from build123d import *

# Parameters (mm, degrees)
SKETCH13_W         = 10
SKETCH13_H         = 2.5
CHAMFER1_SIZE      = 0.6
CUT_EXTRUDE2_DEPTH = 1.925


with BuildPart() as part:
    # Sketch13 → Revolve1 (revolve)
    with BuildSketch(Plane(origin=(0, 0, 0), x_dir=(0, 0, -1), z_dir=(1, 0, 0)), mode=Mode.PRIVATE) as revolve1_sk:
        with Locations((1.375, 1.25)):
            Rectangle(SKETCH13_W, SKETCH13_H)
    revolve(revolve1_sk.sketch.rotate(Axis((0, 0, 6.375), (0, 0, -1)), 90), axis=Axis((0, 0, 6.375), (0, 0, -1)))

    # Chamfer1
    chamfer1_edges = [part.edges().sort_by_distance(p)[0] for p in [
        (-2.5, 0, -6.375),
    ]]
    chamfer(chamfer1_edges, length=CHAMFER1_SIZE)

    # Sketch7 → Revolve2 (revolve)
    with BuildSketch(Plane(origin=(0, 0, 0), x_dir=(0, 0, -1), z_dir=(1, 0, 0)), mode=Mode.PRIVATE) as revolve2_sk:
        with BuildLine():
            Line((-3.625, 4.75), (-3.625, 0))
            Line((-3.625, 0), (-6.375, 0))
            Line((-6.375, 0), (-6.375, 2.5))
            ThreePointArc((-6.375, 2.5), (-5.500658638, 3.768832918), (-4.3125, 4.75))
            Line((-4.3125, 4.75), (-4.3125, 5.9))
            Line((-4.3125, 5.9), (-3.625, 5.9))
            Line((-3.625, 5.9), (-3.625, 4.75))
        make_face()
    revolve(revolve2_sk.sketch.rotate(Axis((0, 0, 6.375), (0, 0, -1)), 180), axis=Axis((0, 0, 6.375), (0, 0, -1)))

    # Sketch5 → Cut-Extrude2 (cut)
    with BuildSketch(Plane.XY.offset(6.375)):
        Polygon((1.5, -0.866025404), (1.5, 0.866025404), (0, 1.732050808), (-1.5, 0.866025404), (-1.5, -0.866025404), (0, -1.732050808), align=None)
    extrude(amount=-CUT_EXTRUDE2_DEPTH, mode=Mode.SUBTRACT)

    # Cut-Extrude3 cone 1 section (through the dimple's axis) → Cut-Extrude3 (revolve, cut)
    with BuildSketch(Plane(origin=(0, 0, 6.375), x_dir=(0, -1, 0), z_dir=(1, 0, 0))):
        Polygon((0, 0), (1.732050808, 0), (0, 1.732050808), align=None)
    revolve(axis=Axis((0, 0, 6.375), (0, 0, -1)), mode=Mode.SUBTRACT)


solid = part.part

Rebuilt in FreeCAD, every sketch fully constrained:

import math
import FreeCAD as App
import Part
import Sketcher

V = App.Vector
Q = App.Units.Quantity


def edges_at(feature, points):
    """Names of the edges that pass closest to the given points."""
    edges = feature.Shape.Edges
    near = lambda p: min(range(len(edges)), key=lambda i: edges[i].distToShape(Part.Vertex(*p))[0])
    return sorted({f"Edge{near(p) + 1}" for p in points})


def add_polygon(sketch, points):
    """Adds a closed chain of lines whose ends are joined by coincident constraints."""
    first, n = sketch.GeometryCount, len(points)
    for a, b in zip(points, points[1:] + points[:1]):
        sketch.addGeometry(Part.LineSegment(App.Vector(*a, 0), App.Vector(*b, 0)), False)
    for i in range(n):
        sketch.addConstraint(Sketcher.Constraint("Coincident", first + i, 2, first + (i + 1) % n, 1))

doc = App.newDocument("Part")
body = doc.addObject("PartDesign::Body", "Body")

# Sketch on YZ plane
sketch1 = body.newObject("Sketcher::SketchObject", "Sketch")
sketch1.AttachmentSupport = (doc.getObject("YZ_Plane"), [""])
sketch1.MapMode = "FlatFace"
add_polygon(sketch1, [(2.5, 3.625), (0, 3.625), (0, -6.375), (2.5, -6.375)])  # lines 0-3
sketch1.addConstraint(Sketcher.Constraint("Horizontal", 0))
sketch1.addConstraint(Sketcher.Constraint("Vertical", 1))
sketch1.addConstraint(Sketcher.Constraint("Horizontal", 2))
sketch1.addConstraint(Sketcher.Constraint("Vertical", 3))
sketch1.addConstraint(Sketcher.Constraint("PointOnObject", 0, 2, -2))
sketch1.addConstraint(Sketcher.Constraint("DistanceY", 1, 2, 1, 1, 10.0))
sketch1.addConstraint(Sketcher.Constraint("DistanceX", 0, 2, 0, 1, 2.5))
sketch1.addConstraint(Sketcher.Constraint("DistanceY", -1, 1, 0, 2, 3.625))
revolution = body.newObject("PartDesign::Revolution", "Revolution")
revolution.Profile = sketch1
revolution.ReferenceAxis = (sketch1, ["V_Axis"])
revolution.Angle = 360
doc.recompute()

chamfer = body.newObject("PartDesign::Chamfer", "Chamfer")
chamfer.Base = (revolution, edges_at(revolution, [(-2.5, 0, -6.375)]))
chamfer.Size = 0.6

# Sketch on YZ plane
sketch2 = body.newObject("Sketcher::SketchObject", "Sketch001")
sketch2.AttachmentSupport = (doc.getObject("YZ_Plane"), [""])
sketch2.MapMode = "FlatFace"
sketch2.addGeometry(Part.LineSegment(V(0, 6.375, 0), V(0, 3.625, 0)), False)
sketch2.addGeometry(Part.LineSegment(V(0, 3.625, 0), V(5.9, 3.625, 0)), False)
sketch2.addGeometry(Part.LineSegment(V(5.9, 3.625, 0), V(5.9, 4.3125, 0)), False)
sketch2.addGeometry(Part.LineSegment(V(5.9, 4.3125, 0), V(4.75, 4.3125, 0)), False)
sketch2.addGeometry(Part.ArcOfCircle(Part.Circle(V(0, 1.389205, 0), V(0, 0, 1), 5.577469), math.radians(31.609414), math.radians(63.369692)), False)
sketch2.addGeometry(Part.LineSegment(V(2.5, 6.375, 0), V(0, 6.375, 0)), False)
sketch2.addConstraint(Sketcher.Constraint("Coincident", 0, 2, 1, 1))
sketch2.addConstraint(Sketcher.Constraint("Coincident", 1, 2, 2, 1))
sketch2.addConstraint(Sketcher.Constraint("Coincident", 2, 2, 3, 1))
sketch2.addConstraint(Sketcher.Constraint("Coincident", 3, 2, 4, 1))
sketch2.addConstraint(Sketcher.Constraint("Coincident", 4, 2, 5, 1))
sketch2.addConstraint(Sketcher.Constraint("Coincident", 5, 2, 0, 1))
sketch2.addConstraint(Sketcher.Constraint("Vertical", 0))
sketch2.addConstraint(Sketcher.Constraint("Horizontal", 1))
sketch2.addConstraint(Sketcher.Constraint("Vertical", 2))
sketch2.addConstraint(Sketcher.Constraint("Horizontal", 3))
sketch2.addConstraint(Sketcher.Constraint("Horizontal", 5))
sketch2.addConstraint(Sketcher.Constraint("PointOnObject", 4, 3, -2))
sketch2.addConstraint(Sketcher.Constraint("PointOnObject", 0, 2, -2))
sketch2.addConstraint(Sketcher.Constraint("DistanceX", 1, 1, 1, 2, 5.9))
sketch2.addConstraint(Sketcher.Constraint("DistanceX", 5, 2, 5, 1, 2.5))
sketch2.addConstraint(Sketcher.Constraint("DistanceX", 3, 2, 3, 1, 1.15))
sketch2.addConstraint(Sketcher.Constraint("DistanceY", 0, 2, 0, 1, 2.75))
sketch2.addConstraint(Sketcher.Constraint("Radius", 4, 5.577469))
sketch2.addConstraint(Sketcher.Constraint("DistanceY", -1, 1, 0, 2, 3.625))
revolution2 = body.newObject("PartDesign::Revolution", "Revolution001")
revolution2.Profile = sketch2
revolution2.ReferenceAxis = (sketch2, ["V_Axis"])
revolution2.Angle = 360

# Sketch on XY plane
sketch3 = body.newObject("Sketcher::SketchObject", "Sketch002")
sketch3.AttachmentSupport = (doc.getObject("XY_Plane"), [""])
sketch3.MapMode = "FlatFace"
sketch3.AttachmentOffset = App.Placement(V(0, 0, 6.375), App.Rotation())
add_polygon(sketch3, [(1.5, -0.866025), (1.5, 0.866025), (0, 1.732051), (-1.5, 0.866025), (-1.5, -0.866025), (0, -1.732051)])  # lines 0-5
sketch3.addConstraint(Sketcher.Constraint("Vertical", 0))
sketch3.addConstraint(Sketcher.Constraint("Vertical", 3))
sketch3.addConstraint(Sketcher.Constraint("Symmetric", 0, 2, 3, 2, -1, 1))
sketch3.addConstraint(Sketcher.Constraint("Symmetric", 1, 2, 4, 2, -1, 1))
sketch3.addConstraint(Sketcher.Constraint("PointOnObject", 1, 2, -2))
sketch3.addConstraint(Sketcher.Constraint("Parallel", 2, 5))
sketch3.addConstraint(Sketcher.Constraint("Horizontal", 0, 2, 2, 2))
sketch3.addConstraint(Sketcher.Constraint("Angle", 1, Q("150 deg")))
sketch3.addConstraint(Sketcher.Constraint("DistanceX", 2, 2, 0, 2, 3.0))
sketch3.addConstraint(Sketcher.Constraint("DistanceY", 0, 1, 0, 2, 1.732051))
pocket1 = body.newObject("PartDesign::Pocket", "Pocket")
pocket1.Profile = sketch3
pocket1.Length = 1.925

# Sketch on YZ plane
sketch4 = body.newObject("Sketcher::SketchObject", "Sketch003")
sketch4.AttachmentSupport = (doc.getObject("YZ_Plane"), [""])
sketch4.MapMode = "FlatFace"
add_polygon(sketch4, [(0, 6.375), (-1.732051, 6.375), (0, 4.642949)])  # lines 0-2
sketch4.addConstraint(Sketcher.Constraint("Horizontal", 0))
sketch4.addConstraint(Sketcher.Constraint("Vertical", 2))
sketch4.addConstraint(Sketcher.Constraint("PointOnObject", 1, 2, -2))
sketch4.addConstraint(Sketcher.Constraint("Equal", 0, 2))
sketch4.addConstraint(Sketcher.Constraint("DistanceY", -1, 1, 0, 2, 6.375))
sketch4.addConstraint(Sketcher.Constraint("DistanceX", 0, 2, 0, 1, 1.732051))
groove = body.newObject("PartDesign::Groove", "Groove")
groove.Profile = sketch4
groove.ReferenceAxis = (sketch4, ["V_Axis"])
groove.Angle = 360

doc.recompute()
